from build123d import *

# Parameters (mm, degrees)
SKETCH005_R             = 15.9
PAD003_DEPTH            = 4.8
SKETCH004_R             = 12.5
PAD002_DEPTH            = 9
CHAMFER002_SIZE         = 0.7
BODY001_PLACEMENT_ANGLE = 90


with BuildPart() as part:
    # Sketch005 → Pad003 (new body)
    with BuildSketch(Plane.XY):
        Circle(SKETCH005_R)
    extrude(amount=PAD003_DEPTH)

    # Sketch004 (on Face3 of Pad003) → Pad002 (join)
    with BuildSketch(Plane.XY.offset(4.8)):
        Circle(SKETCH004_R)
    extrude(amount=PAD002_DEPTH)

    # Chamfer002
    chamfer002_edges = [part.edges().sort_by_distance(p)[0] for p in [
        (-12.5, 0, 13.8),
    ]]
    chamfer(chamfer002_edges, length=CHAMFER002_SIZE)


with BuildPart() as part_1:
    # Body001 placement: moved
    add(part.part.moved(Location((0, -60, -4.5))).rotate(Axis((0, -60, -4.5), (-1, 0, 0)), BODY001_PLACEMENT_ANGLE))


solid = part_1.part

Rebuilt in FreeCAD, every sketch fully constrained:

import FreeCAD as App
import Part
import Sketcher

V = App.Vector


def edges_at(feature, points):
    """Names of the edges that pass closest to the given points."""
    edges = feature.Shape.Edges
    near = lambda p: min(range(len(edges)), key=lambda i: edges[i].distToShape(Part.Vertex(*p))[0])
    return sorted({f"Edge{near(p) + 1}" for p in points})

doc = App.newDocument("Part")
params = doc.addObject("Spreadsheet::Sheet", "Params")
for row, (alias, value) in enumerate([
    ("sketch1_diameter", "31.8 mm"),
    ("pad1_length", "4.8 mm"),
    ("sketch2_diameter", "25 mm"),
    ("pad2_length", "9 mm"),
    ("chamfer_size", "0.7 mm"),
], start=1):
    params.set(f"A{row}", alias)
    params.set(f"B{row}", "=" + value)
    params.setAlias(f"B{row}", alias)

body = doc.addObject("PartDesign::Body", "Body")

# Sketch on XY plane
sketch1 = doc.addObject("Sketcher::SketchObject", "Sketch")
body.addObject(sketch1)
sketch1.AttachmentSupport = (doc.XY_Plane, [""])
sketch1.MapMode = "FlatFace"
sketch1.addGeometry(Part.Circle(V(0, 0, 0), V(0, 0, 1), 15.9), False)
sketch1.addConstraint(Sketcher.Constraint("Coincident", 0, 3, -1, 1))
sketch1.addConstraint(Sketcher.Constraint("Diameter", 0, 31.8))
sketch1.setExpression("Constraints[1]", "Params.sketch1_diameter")
pad1 = doc.addObject("PartDesign::Pad", "Pad")
body.addObject(pad1)
pad1.Profile = sketch1
pad1.setExpression("Length", "Params.pad1_length")

# Sketch on XY plane
sketch2 = doc.addObject("Sketcher::SketchObject", "Sketch001")
body.addObject(sketch2)
sketch2.AttachmentSupport = (doc.XY_Plane, [""])
sketch2.MapMode = "FlatFace"
sketch2.AttachmentOffset = App.Placement(V(0, 0, 4.8), App.Rotation())
sketch2.addGeometry(Part.Circle(V(0, 0, 0), V(0, 0, 1), 12.5), False)
sketch2.addConstraint(Sketcher.Constraint("Coincident", 0, 3, -1, 1))
sketch2.addConstraint(Sketcher.Constraint("Diameter", 0, 25.0))
sketch2.setExpression("Constraints[1]", "Params.sketch2_diameter")
pad2 = doc.addObject("PartDesign::Pad", "Pad001")
body.addObject(pad2)
pad2.Profile = sketch2
pad2.setExpression("Length", "Params.pad2_length")
doc.recompute()

chamfer = doc.addObject("PartDesign::Chamfer", "Chamfer")
body.addObject(chamfer)
chamfer.Base = (pad2, edges_at(pad2, [(-12.5, 0, 13.8)]))
chamfer.setExpression("Size", "Params.chamfer_size")
body2 = doc.addObject("PartDesign::Body", "Body001")
doc.recompute()

body.Placement = App.Placement(V(0, -60, -4.5), App.Rotation(V(-1, 0, 0), 90))
boolean = doc.addObject("PartDesign::Boolean", "Boolean")
body2.addObject(boolean)
boolean.Type = "Fuse"
boolean.addObjects([body])

doc.recompute()
